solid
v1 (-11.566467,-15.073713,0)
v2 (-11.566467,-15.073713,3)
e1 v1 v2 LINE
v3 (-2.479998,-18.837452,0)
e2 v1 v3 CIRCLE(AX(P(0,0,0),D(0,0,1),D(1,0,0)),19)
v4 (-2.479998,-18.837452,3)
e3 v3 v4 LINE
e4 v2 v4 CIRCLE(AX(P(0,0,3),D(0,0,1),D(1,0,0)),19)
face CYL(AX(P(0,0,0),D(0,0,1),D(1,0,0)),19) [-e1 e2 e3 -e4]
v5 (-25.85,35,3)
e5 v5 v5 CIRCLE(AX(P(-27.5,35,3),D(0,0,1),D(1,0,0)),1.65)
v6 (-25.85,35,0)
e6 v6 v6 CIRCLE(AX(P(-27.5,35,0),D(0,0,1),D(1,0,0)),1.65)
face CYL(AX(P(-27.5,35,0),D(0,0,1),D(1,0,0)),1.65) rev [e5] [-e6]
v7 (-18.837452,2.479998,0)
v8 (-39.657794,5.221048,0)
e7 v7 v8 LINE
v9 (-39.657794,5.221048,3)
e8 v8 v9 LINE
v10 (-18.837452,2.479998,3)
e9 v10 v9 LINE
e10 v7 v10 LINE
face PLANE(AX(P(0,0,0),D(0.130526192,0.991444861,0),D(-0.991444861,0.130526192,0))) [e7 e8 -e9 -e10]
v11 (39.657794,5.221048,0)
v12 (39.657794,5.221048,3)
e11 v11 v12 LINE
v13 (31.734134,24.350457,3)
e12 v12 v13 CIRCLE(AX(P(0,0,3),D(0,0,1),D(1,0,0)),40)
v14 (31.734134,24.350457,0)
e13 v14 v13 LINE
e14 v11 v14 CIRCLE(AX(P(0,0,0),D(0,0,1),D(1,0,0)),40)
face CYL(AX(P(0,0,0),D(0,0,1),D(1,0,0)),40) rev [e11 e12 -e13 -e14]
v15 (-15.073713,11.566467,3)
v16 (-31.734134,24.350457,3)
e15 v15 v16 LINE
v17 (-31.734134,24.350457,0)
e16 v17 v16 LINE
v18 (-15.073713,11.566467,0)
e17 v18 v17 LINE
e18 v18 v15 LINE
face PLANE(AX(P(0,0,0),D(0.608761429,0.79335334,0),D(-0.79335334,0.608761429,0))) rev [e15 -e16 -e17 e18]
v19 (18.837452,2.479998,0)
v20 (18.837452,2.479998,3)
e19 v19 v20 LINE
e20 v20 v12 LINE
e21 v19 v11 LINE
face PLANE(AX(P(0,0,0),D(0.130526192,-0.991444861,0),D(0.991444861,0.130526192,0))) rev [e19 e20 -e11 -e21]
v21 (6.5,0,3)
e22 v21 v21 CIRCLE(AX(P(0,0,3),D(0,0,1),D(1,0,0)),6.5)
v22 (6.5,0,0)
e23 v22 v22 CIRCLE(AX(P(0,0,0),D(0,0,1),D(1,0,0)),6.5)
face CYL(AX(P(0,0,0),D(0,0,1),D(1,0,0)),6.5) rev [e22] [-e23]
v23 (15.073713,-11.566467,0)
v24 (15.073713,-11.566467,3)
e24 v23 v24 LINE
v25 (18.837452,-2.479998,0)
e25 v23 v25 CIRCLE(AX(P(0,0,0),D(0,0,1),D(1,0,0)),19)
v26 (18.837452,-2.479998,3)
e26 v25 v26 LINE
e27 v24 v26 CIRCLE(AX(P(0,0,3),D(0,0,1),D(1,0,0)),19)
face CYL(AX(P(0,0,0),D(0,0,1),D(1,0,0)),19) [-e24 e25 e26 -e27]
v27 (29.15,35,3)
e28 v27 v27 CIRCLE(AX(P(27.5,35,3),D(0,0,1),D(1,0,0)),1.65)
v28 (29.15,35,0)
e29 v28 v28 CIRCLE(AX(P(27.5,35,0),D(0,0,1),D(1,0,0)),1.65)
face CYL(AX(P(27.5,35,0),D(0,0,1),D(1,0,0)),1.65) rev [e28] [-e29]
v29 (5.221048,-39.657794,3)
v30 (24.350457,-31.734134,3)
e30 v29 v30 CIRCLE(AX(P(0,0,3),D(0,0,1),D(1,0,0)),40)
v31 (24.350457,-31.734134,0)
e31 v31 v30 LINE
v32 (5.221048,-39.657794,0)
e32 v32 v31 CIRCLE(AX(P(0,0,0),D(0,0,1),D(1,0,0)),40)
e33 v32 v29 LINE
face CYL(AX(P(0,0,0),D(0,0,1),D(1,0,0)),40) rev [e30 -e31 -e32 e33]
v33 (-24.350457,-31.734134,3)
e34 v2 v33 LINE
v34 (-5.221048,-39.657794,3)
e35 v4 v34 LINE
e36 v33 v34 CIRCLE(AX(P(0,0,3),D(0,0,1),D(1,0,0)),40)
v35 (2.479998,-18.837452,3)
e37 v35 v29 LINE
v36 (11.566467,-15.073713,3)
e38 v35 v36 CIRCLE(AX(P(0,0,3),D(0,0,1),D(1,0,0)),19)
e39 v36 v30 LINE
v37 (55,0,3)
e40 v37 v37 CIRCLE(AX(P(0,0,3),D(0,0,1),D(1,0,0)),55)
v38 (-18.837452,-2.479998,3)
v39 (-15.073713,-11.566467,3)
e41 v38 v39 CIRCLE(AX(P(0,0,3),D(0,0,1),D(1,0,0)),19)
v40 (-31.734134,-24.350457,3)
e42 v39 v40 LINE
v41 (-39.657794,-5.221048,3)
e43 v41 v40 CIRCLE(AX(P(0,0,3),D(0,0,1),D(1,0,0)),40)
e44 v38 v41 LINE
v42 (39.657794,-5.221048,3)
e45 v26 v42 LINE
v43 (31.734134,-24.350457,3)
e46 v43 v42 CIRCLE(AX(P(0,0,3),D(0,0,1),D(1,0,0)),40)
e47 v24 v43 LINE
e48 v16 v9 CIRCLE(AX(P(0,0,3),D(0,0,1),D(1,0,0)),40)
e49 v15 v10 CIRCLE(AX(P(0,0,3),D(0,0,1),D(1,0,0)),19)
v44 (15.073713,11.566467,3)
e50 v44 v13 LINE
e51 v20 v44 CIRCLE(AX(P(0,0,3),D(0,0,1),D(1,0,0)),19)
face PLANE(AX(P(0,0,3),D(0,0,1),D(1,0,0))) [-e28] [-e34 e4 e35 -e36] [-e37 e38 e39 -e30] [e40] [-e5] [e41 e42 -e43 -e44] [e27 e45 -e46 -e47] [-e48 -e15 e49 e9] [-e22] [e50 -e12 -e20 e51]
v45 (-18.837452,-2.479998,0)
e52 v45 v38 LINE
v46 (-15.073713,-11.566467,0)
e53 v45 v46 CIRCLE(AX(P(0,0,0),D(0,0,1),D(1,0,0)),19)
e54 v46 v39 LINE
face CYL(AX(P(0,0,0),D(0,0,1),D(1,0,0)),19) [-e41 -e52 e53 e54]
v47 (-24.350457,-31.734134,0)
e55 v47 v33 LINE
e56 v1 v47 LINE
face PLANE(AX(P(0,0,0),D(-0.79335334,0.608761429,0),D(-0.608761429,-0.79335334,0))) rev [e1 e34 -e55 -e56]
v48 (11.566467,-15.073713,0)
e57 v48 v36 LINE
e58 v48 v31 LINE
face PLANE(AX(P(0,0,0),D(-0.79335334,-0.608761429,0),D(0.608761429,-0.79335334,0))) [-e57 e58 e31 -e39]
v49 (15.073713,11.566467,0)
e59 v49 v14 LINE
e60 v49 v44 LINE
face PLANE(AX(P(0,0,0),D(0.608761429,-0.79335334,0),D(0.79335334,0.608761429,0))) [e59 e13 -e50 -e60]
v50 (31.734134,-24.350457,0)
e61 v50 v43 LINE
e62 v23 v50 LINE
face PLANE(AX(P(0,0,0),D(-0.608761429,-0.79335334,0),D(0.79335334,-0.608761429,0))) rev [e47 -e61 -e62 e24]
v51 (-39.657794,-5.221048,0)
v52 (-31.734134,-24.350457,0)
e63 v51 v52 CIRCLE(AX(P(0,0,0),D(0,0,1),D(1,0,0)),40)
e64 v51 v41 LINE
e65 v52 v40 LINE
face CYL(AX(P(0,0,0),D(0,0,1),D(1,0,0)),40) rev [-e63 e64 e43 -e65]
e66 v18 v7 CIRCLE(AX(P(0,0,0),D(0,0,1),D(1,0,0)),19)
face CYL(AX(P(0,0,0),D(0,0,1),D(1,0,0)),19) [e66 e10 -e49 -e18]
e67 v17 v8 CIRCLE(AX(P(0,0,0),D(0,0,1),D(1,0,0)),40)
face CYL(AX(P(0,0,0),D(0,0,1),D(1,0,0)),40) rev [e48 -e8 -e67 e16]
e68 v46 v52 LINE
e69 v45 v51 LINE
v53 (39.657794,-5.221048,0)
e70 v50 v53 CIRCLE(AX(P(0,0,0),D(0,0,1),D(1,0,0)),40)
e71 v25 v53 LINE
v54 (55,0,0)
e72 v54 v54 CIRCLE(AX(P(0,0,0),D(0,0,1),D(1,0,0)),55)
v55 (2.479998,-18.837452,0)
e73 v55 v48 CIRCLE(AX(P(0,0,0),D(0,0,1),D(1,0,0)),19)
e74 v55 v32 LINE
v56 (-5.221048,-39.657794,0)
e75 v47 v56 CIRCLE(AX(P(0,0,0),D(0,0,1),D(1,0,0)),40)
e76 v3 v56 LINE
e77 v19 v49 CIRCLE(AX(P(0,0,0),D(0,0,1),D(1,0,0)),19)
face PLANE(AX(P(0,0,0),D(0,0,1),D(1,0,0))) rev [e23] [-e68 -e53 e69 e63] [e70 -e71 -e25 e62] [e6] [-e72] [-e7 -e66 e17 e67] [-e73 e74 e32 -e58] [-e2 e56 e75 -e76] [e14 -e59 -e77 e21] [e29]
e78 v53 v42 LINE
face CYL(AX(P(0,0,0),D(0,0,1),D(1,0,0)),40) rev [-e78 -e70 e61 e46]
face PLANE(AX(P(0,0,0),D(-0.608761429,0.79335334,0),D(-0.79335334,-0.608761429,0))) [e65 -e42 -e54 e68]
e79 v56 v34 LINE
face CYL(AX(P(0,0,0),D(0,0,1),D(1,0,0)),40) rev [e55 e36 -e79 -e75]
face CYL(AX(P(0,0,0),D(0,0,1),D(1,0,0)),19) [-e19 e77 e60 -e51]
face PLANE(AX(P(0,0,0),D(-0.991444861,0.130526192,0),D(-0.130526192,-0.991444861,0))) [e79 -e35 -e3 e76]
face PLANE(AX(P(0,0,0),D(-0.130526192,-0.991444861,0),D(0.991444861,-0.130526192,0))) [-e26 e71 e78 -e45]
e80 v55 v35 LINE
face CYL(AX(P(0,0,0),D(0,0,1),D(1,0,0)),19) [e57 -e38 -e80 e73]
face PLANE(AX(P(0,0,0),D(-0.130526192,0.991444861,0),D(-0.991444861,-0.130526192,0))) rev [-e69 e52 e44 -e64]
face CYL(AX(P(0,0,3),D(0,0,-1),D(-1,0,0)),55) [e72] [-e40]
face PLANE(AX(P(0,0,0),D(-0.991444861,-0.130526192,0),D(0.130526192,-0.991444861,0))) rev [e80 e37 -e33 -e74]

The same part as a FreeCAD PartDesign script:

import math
import FreeCAD as App
import Part
import Sketcher
from FreeCAD import Vector
Q = App.Units.Quantity

doc = App.newDocument("Part")
body = doc.addObject("PartDesign::Body", "Body")

# Sketch on XY plane
sketch1 = doc.addObject("Sketcher::SketchObject", "Sketch")
body.addObject(sketch1)
sketch1.AttachmentSupport = (doc.XY_Plane, [""])
sketch1.MapMode = "FlatFace"
sketch1.addGeometry(Part.Circle(Vector(0, 0, 0), Vector(0, 0, 1), 55), False)
sketch1.addConstraint([
    Sketcher.Constraint("Coincident", 0, 3, -1, 1),
    Sketcher.Constraint("Diameter", 0, 110.0),
])
pad1 = doc.addObject("PartDesign::Pad", "Pad")
body.addObject(pad1)
pad1.Profile = sketch1
pad1.Length = 3

# Sketch on XY plane
sketch2 = doc.addObject("Sketcher::SketchObject", "Sketch001")
body.addObject(sketch2)
sketch2.AttachmentSupport = (doc.XY_Plane, [""])
sketch2.MapMode = "FlatFace"
sketch2.AttachmentOffset = App.Placement(Vector(0, 0, 3), App.Rotation())
sketch2.addGeometry([
    Part.Circle(Vector(27.5, 35, 0), Vector(0, 0, 1), 1.6),
    Part.Circle(Vector(-27.5, 35, 0), Vector(0, 0, 1), 1.6),
], False)
sketch2.addConstraint([
    Sketcher.Constraint("Equal", 0, 1),
    Sketcher.Constraint("Symmetric", 0, 3, 1, 3, -2),
    Sketcher.Constraint("Diameter", 0, 3.3),
    Sketcher.Constraint("DistanceY", -1, 1, 0, 3, 35.0),
    Sketcher.Constraint("DistanceX", 1, 3, 0, 3, 55.0),
])
pocket1 = doc.addObject("PartDesign::Pocket", "Pocket")
body.addObject(pocket1)
pocket1.Profile = sketch2
pocket1.Length = 3

# Sketch on XY plane
sketch3 = doc.addObject("Sketcher::SketchObject", "Sketch002")
body.addObject(sketch3)
sketch3.AttachmentSupport = (doc.XY_Plane, [""])
sketch3.MapMode = "FlatFace"
sketch3.AttachmentOffset = App.Placement(Vector(0, 0, 3), App.Rotation())
sketch3.addGeometry([
    Part.ArcOfCircle(Part.Circle(Vector(0, 0, 0), Vector(0, 0, 1), 19), math.radians(7), math.radians(38)),  # 0
    Part.LineSegment(Vector(19, 2, 0), Vector(40, 5, 0)),  # 1
    Part.ArcOfCircle(Part.Circle(Vector(0, 0, 0), Vector(0, 0, 1), 40), math.radians(8), math.radians(37)),  # 2
    Part.LineSegment(Vector(32, 24, 0), Vector(15, 12, 0)),  # 3
    Part.LineSegment(Vector(-40, 5, 0), Vector(-19, 2, 0)),  # 4
    Part.ArcOfCircle(Part.Circle(Vector(0, 0, 0), Vector(0, 0, 1), 19), math.radians(142), math.radians(173)),  # 5
    Part.LineSegment(Vector(-15, 12, 0), Vector(-32, 24, 0)),  # 6
    Part.ArcOfCircle(Part.Circle(Vector(0, 0, 0), Vector(0, 0, 1), 40), math.radians(143), math.radians(172)),  # 7
    Part.LineSegment(Vector(-32, -24, 0), Vector(-15, -12, 0)),  # 8
    Part.ArcOfCircle(Part.Circle(Vector(0, 0, 0), Vector(0, 0, 1), 19), math.radians(-173), math.radians(-142)),  # 9
    Part.LineSegment(Vector(-19, -2, 0), Vector(-40, -5, 0)),  # 10
    Part.ArcOfCircle(Part.Circle(Vector(0, 0, 0), Vector(0, 0, 1), 40), math.radians(-172), math.radians(-143)),  # 11
    Part.LineSegment(Vector(-5, -40, 0), Vector(-2, -19, 0)),  # 12
    Part.ArcOfCircle(Part.Circle(Vector(0, 0, 0), Vector(0, 0, 1), 19), math.radians(-128), math.radians(-97)),  # 13
    Part.LineSegment(Vector(-12, -15, 0), Vector(-24, -32, 0)),  # 14
    Part.ArcOfCircle(Part.Circle(Vector(0, 0, 0), Vector(0, 0, 1), 40), math.radians(-127), math.radians(-98)),  # 15
    Part.LineSegment(Vector(24, -32, 0), Vector(12, -15, 0)),  # 16
    Part.ArcOfCircle(Part.Circle(Vector(0, 0, 0), Vector(0, 0, 1), 19), math.radians(-83), math.radians(-52)),  # 17
    Part.LineSegment(Vector(2, -19, 0), Vector(5, -40, 0)),  # 18
    Part.ArcOfCircle(Part.Circle(Vector(0, 0, 0), Vector(0, 0, 1), 40), math.radians(-82), math.radians(-53)),  # 19
    Part.LineSegment(Vector(40, -5, 0), Vector(19, -2, 0)),  # 20
    Part.ArcOfCircle(Part.Circle(Vector(0, 0, 0), Vector(0, 0, 1), 19), math.radians(-38), math.radians(-7)),  # 21
    Part.LineSegment(Vector(15, -12, 0), Vector(32, -24, 0)),  # 22
    Part.ArcOfCircle(Part.Circle(Vector(0, 0, 0), Vector(0, 0, 1), 40), math.radians(-37), math.radians(-8)),  # 23
], False)
sketch3.addConstraint([
    Sketcher.Constraint("Coincident", 0, 1, 1, 1),
    Sketcher.Constraint("Coincident", 1, 2, 2, 1),
    Sketcher.Constraint("Coincident", 2, 2, 3, 1),
    Sketcher.Constraint("Coincident", 3, 2, 0, 2),
    Sketcher.Constraint("Coincident", 4, 2, 5, 2),
    Sketcher.Constraint("Coincident", 5, 1, 6, 1),
    Sketcher.Constraint("Coincident", 6, 2, 7, 1),
    Sketcher.Constraint("Coincident", 7, 2, 4, 1),
    Sketcher.Constraint("Coincident", 8, 2, 9, 2),
    Sketcher.Constraint("Coincident", 9, 1, 10, 1),
    Sketcher.Constraint("Coincident", 10, 2, 11, 1),
    Sketcher.Constraint("Coincident", 11, 2, 8, 1),
    Sketcher.Constraint("Coincident", 12, 2, 13, 2),
    Sketcher.Constraint("Coincident", 13, 1, 14, 1),
    Sketcher.Constraint("Coincident", 14, 2, 15, 1),
    Sketcher.Constraint("Coincident", 15, 2, 12, 1),
    Sketcher.Constraint("Coincident", 16, 2, 17, 2),
    Sketcher.Constraint("Coincident", 17, 1, 18, 1),
    Sketcher.Constraint("Coincident", 18, 2, 19, 1),
    Sketcher.Constraint("Coincident", 19, 2, 16, 1),
    Sketcher.Constraint("Coincident", 20, 2, 21, 2),
    Sketcher.Constraint("Coincident", 21, 1, 22, 1),
    Sketcher.Constraint("Coincident", 22, 2, 23, 1),
    Sketcher.Constraint("Coincident", 23, 2, 20, 1),
    Sketcher.Constraint("Coincident", 0, 3, -1, 1),
    Sketcher.Constraint("Coincident", 2, 3, -1, 1),
    Sketcher.Constraint("Coincident", 5, 3, -1, 1),
    Sketcher.Constraint("Coincident", 7, 3, -1, 1),
    Sketcher.Constraint("Coincident", 9, 3, -1, 1),
    Sketcher.Constraint("Coincident", 11, 3, -1, 1),
    Sketcher.Constraint("Coincident", 13, 3, -1, 1),
    Sketcher.Constraint("Coincident", 15, 3, -1, 1),
    Sketcher.Constraint("Coincident", 17, 3, -1, 1),
    Sketcher.Constraint("Coincident", 19, 3, -1, 1),
    Sketcher.Constraint("Coincident", 21, 3, -1, 1),
    Sketcher.Constraint("Coincident", 23, 3, -1, 1),
    Sketcher.Constraint("Equal", 0, 5),
    Sketcher.Constraint("Equal", 2, 7),
    Sketcher.Constraint("Equal", 5, 9),
    Sketcher.Constraint("Equal", 7, 11),
    Sketcher.Constraint("Equal", 9, 13),
    Sketcher.Constraint("Equal", 11, 15),
    Sketcher.Constraint("Equal", 13, 17),
    Sketcher.Constraint("Equal", 15, 19),
    Sketcher.Constraint("Equal", 17, 21),
    Sketcher.Constraint("Equal", 19, 23),
    Sketcher.Constraint("Parallel", 3, 8),
    Sketcher.Constraint("Parallel", 1, 10),
    Sketcher.Constraint("Perpendicular", 4, 12),
    Sketcher.Constraint("Perpendicular", 6, 14),
    Sketcher.Constraint("Perpendicular", 8, 16),
    Sketcher.Constraint("Perpendicular", 10, 18),
    Sketcher.Constraint("Perpendicular", 12, 20),
    Sketcher.Constraint("Perpendicular", 14, 22),
    Sketcher.Constraint("Horizontal", 0, 1, 4, 2),
    Sketcher.Constraint("Horizontal", 3, 2, 5, 1),
    Sketcher.Constraint("Horizontal", 2, 2, 6, 2),
    Sketcher.Constraint("Horizontal", 1, 2, 7, 2),
    Sketcher.Constraint("Horizontal", 13, 1, 16, 2),
    Sketcher.Constraint("Horizontal", 12, 2, 17, 1),
    Sketcher.Constraint("Horizontal", 9, 1, 20, 2),
    Sketcher.Constraint("Horizontal", 8, 2, 21, 1),
    Sketcher.Constraint("Vertical", 5, 1, 8, 2),
    Sketcher.Constraint("Vertical", 4, 2, 9, 1),
    Sketcher.Constraint("Radius", 0, 19.0),
    Sketcher.Constraint("Radius", 2, 40.0),
    Sketcher.Constraint("Angle", 1, Q("7.5 deg")),
    Sketcher.Constraint("Angle", 3, Q("-142.5 deg")),
    Sketcher.Constraint("DistanceX", 2, 2, 1, 2, 7.923661),
    Sketcher.Constraint("DistanceY", 1, 2, 2, 2, 19.129409),
    Sketcher.Constraint("DistanceX", 13, 1, 12, 2, 9.086469),
    Sketcher.Constraint("DistanceY", 12, 2, 13, 1, 3.763739),
])
pocket2 = doc.addObject("PartDesign::Pocket", "Pocket001")
body.addObject(pocket2)
pocket2.Profile = sketch3
pocket2.Length = 3

# Sketch on XY plane
sketch4 = doc.addObject("Sketcher::SketchObject", "Sketch003")
body.addObject(sketch4)
sketch4.AttachmentSupport = (doc.XY_Plane, [""])
sketch4.MapMode = "FlatFace"
sketch4.AttachmentOffset = App.Placement(Vector(0, 0, 3), App.Rotation())
sketch4.addGeometry(Part.Circle(Vector(0, 0, 0), Vector(0, 0, 1), 6), False)
sketch4.addConstraint([
    Sketcher.Constraint("Coincident", 0, 3, -1, 1),
    Sketcher.Constraint("Diameter", 0, 13.0),
])
pocket3 = doc.addObject("PartDesign::Pocket", "Pocket002")
body.addObject(pocket3)
pocket3.Profile = sketch4
pocket3.Length = 3

doc.recompute()
